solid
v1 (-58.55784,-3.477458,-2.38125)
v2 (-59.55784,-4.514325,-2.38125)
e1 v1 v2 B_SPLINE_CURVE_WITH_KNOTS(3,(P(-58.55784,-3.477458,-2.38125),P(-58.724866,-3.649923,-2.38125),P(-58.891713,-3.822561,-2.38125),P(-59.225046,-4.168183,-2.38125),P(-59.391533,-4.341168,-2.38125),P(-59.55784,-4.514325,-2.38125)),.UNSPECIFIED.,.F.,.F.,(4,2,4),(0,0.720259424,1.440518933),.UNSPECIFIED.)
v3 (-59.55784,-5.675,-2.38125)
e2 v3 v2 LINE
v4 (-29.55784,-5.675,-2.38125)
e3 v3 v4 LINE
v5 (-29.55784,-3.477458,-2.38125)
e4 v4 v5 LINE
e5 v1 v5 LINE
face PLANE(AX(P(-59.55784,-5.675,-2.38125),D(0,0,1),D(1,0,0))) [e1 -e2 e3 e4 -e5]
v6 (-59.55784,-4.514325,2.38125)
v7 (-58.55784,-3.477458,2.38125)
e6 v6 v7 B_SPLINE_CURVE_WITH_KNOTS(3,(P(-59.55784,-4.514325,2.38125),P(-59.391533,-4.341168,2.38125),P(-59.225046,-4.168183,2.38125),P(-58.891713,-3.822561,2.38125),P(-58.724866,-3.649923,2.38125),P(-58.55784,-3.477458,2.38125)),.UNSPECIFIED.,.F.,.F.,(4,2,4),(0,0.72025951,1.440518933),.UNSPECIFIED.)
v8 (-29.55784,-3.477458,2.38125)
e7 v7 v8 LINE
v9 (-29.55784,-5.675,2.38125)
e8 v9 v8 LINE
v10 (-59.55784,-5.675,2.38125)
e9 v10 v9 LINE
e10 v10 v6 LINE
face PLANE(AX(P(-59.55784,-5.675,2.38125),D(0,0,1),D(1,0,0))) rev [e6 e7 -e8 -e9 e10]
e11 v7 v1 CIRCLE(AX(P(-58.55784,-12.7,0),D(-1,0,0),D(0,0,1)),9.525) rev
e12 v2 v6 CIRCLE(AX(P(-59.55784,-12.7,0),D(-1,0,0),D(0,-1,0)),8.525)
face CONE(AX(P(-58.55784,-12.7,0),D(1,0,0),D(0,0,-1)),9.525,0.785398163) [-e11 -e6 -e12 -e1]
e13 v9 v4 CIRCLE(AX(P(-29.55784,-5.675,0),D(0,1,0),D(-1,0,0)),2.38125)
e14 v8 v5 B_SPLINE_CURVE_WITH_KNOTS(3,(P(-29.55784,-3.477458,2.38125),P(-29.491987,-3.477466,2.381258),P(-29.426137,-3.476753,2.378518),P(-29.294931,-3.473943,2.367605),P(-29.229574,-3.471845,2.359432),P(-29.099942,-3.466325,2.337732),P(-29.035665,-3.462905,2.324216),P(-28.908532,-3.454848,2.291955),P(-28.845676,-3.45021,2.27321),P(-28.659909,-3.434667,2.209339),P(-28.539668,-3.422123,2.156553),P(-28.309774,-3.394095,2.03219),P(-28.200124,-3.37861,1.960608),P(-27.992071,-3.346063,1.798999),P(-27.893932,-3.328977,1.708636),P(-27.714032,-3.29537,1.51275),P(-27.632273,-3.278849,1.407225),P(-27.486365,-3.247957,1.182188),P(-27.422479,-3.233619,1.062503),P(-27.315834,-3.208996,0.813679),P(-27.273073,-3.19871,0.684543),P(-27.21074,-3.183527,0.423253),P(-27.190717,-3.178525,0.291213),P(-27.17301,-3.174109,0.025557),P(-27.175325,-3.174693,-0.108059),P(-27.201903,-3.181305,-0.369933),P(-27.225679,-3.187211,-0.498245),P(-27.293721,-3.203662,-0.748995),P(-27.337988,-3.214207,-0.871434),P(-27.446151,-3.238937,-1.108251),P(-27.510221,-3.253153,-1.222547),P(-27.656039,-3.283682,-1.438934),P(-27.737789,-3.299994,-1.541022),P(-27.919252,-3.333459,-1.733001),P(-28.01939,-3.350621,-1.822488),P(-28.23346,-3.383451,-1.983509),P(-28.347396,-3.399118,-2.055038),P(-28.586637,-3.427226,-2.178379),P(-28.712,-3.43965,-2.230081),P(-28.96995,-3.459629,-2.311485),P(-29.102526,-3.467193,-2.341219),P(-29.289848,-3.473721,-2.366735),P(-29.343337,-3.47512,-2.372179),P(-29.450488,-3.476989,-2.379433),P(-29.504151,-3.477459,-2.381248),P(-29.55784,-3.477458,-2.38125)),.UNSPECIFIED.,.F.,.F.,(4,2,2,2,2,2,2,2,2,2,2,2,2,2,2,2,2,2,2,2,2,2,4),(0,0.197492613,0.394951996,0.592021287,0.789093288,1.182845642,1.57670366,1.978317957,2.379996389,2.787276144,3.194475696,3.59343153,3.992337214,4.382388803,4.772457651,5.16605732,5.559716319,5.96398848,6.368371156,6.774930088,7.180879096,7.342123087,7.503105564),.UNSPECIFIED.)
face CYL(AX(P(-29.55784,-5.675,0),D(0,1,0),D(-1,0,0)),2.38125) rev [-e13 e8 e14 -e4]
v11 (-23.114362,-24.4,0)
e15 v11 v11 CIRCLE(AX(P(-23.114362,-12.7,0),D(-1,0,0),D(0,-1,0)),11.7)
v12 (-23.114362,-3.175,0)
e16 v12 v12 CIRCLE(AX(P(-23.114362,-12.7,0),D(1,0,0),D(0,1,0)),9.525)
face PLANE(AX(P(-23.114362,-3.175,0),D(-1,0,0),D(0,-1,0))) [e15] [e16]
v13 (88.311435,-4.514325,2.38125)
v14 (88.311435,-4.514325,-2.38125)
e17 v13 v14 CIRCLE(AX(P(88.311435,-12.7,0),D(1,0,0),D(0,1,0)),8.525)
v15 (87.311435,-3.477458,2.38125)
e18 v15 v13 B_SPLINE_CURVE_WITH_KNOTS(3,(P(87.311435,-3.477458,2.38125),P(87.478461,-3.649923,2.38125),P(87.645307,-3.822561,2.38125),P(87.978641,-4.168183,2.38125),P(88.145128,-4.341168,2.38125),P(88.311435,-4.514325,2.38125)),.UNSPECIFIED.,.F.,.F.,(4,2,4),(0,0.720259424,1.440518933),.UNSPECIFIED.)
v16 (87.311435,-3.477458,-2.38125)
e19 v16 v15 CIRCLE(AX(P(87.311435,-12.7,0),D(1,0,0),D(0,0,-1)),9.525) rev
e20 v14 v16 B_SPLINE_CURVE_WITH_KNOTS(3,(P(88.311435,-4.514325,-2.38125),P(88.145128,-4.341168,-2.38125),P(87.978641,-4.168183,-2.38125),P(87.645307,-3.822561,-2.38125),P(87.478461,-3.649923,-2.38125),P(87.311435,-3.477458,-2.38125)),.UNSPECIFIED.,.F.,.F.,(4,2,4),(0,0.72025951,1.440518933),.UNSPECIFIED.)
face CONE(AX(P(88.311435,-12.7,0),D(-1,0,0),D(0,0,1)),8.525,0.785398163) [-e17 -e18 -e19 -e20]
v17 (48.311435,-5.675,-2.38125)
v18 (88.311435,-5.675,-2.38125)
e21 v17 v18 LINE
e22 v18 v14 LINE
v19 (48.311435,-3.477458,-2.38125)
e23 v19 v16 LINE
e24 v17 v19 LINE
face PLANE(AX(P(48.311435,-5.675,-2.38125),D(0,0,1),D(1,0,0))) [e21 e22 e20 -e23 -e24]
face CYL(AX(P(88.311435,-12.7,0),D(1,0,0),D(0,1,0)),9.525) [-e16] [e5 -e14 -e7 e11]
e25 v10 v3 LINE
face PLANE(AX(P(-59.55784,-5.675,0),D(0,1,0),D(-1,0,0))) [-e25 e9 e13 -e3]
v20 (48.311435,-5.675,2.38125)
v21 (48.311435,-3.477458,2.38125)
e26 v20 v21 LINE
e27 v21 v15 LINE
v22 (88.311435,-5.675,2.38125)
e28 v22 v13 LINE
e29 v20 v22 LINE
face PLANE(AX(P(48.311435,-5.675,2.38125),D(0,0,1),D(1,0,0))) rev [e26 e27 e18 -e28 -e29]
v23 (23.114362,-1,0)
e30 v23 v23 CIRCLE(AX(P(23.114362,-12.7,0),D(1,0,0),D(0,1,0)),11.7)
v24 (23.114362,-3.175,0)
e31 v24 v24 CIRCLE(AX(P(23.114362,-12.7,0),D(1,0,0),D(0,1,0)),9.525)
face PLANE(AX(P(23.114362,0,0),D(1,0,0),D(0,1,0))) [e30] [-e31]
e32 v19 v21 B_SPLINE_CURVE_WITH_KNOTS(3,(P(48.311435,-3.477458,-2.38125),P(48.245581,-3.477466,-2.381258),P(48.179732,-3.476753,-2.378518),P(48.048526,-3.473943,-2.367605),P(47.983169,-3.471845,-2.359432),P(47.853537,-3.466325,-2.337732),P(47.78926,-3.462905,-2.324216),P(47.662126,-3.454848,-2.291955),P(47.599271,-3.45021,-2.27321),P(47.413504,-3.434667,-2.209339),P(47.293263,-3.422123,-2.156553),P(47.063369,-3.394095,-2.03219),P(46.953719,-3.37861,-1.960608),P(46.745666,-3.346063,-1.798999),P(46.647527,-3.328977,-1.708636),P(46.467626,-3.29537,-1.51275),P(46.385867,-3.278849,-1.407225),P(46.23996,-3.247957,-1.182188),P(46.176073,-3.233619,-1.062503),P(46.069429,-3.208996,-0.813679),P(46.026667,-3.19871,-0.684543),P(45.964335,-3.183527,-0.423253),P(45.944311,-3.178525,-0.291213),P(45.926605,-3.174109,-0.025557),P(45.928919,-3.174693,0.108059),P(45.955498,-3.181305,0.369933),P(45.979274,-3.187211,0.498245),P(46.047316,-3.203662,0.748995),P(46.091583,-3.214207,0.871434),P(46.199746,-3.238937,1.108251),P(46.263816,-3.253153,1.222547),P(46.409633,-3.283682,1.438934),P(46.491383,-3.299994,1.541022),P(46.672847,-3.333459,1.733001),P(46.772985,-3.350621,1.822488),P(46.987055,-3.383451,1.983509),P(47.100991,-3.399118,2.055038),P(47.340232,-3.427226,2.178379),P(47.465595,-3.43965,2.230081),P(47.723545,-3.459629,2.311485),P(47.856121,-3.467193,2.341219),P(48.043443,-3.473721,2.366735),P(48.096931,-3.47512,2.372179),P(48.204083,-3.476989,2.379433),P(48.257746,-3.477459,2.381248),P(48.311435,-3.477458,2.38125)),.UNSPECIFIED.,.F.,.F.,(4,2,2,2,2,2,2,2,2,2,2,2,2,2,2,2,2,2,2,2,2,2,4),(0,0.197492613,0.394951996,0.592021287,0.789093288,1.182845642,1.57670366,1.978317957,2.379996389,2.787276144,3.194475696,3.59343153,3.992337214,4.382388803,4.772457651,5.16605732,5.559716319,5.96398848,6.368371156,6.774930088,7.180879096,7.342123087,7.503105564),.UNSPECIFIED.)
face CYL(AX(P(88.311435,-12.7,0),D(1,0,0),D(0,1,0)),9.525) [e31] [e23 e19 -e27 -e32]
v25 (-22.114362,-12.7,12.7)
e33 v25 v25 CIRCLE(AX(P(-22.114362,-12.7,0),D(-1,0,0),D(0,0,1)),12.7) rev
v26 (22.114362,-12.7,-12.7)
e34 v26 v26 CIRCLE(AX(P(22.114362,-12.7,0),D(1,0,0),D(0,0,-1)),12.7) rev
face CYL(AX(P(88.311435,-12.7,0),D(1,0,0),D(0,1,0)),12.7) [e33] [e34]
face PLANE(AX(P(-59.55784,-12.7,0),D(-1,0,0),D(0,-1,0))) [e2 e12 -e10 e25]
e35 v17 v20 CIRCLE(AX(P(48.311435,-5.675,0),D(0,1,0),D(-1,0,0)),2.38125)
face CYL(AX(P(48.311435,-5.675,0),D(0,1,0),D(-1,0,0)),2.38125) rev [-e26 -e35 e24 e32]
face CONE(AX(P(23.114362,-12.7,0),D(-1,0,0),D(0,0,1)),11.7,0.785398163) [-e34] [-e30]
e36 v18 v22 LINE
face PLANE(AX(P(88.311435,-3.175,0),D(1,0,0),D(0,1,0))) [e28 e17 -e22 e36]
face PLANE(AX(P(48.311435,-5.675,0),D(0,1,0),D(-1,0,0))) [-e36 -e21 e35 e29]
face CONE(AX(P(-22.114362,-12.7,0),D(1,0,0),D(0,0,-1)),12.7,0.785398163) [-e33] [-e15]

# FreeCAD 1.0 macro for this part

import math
import FreeCAD as App
import Part
import Sketcher
from FreeCAD import Vector


def edges_at(feature, points):
    """Names of the edges that pass closest to the given points."""
    edges = feature.Shape.Edges
    near = lambda p: min(range(len(edges)), key=lambda i: edges[i].distToShape(Part.Vertex(*p))[0])
    return sorted({f"Edge{near(p) + 1}" for p in points})


def add_polygon(sketch, points):
    """Adds a closed chain of lines whose ends are joined by coincident constraints."""
    first, n = sketch.GeometryCount, len(points)
    for a, b in zip(points, points[1:] + points[:1]):
        sketch.addGeometry(Part.LineSegment(App.Vector(*a, 0), App.Vector(*b, 0)), False)
    for i in range(n):
        sketch.addConstraint(Sketcher.Constraint("Coincident", first + i, 2, first + (i + 1) % n, 1))

doc = App.newDocument("Part")
body = doc.addObject("PartDesign::Body", "Body")

# Sketch on XY plane
sketch1 = body.newObject("Sketcher::SketchObject", "Sketch")
sketch1.AttachmentSupport = (doc.getObject("XY_Plane"), [""])
sketch1.MapMode = "FlatFace"
add_polygon(sketch1, [(23.114362, 0), (-23.114362, 0), (-23.114362, -3.175), (-59.55784, -3.175), (-59.55784, -12.7), (88.311435, -12.7), (88.311435, -3.175), (23.114362, -3.175)])  # lines 0-7
sketch1.addGeometry(Part.LineSegment(Vector(88.311435, -12.7, 0), Vector(-59.55784, -12.7, 0)), True)  # axis
sketch1.addConstraint([
    Sketcher.Constraint("Horizontal", 0),
    Sketcher.Constraint("Vertical", 1),
    Sketcher.Constraint("Horizontal", 2),
    Sketcher.Constraint("Vertical", 3),
    Sketcher.Constraint("Horizontal", 4),
    Sketcher.Constraint("Vertical", 5),
    Sketcher.Constraint("Horizontal", 6),
    Sketcher.Constraint("Vertical", 7),
    Sketcher.Constraint("Horizontal", 8),
    Sketcher.Constraint("Coincident", 8, 1, 4, 2),
    Sketcher.Constraint("Symmetric", 0, 2, 7, 2, -1, 1),
    Sketcher.Constraint("Horizontal", 2, 2, 5, 2),
    Sketcher.Constraint("Vertical", 2, 2, 8, 2),
    Sketcher.Constraint("DistanceY", 3, 2, -1, 1, 12.7),
    Sketcher.Constraint("DistanceY", 1, 2, 1, 1, 3.175),
    Sketcher.Constraint("DistanceX", 2, 2, 2, 1, 36.443478),
    Sketcher.Constraint("DistanceX", 0, 2, 0, 1, 46.228724),
    Sketcher.Constraint("DistanceX", 4, 1, 4, 2, 147.869275),
])
revolution = body.newObject("PartDesign::Revolution", "Revolution")
revolution.Profile = sketch1
revolution.ReferenceAxis = (sketch1, ["Axis0"])
revolution.Angle = 360

# Sketch on XZ plane
sketch2 = body.newObject("Sketcher::SketchObject", "Sketch001")
sketch2.AttachmentSupport = (doc.getObject("XZ_Plane"), [""])
sketch2.MapMode = "FlatFace"
sketch2.AttachmentOffset = App.Placement(Vector(0, 0, 3.175), App.Rotation())
sketch2.addGeometry([
    Part.LineSegment(Vector(88.311435, -2.38125, 0), Vector(48.311435, -2.38125, 0)),  # 0
    Part.ArcOfCircle(Part.Circle(Vector(48.311435, 0, 0), Vector(0, 0, 1), 2.38125), math.radians(90), math.radians(270)),  # 1
    Part.LineSegment(Vector(48.311435, 2.38125, 0), Vector(88.311435, 2.38125, 0)),  # 2
    Part.ArcOfCircle(Part.Circle(Vector(88.311435, 0, 0), Vector(0, 0, 1), 2.38125), math.radians(-90), math.radians(90)),  # 3
    Part.LineSegment(Vector(-29.55784, -2.38125, 0), Vector(-59.55784, -2.38125, 0)),  # 4
    Part.ArcOfCircle(Part.Circle(Vector(-59.55784, 0, 0), Vector(0, 0, 1), 2.38125), math.radians(90), math.radians(270)),  # 5
    Part.LineSegment(Vector(-59.55784, 2.38125, 0), Vector(-29.55784, 2.38125, 0)),  # 6
    Part.ArcOfCircle(Part.Circle(Vector(-29.55784, 0, 0), Vector(0, 0, 1), 2.38125), math.radians(-90), math.radians(90)),  # 7
], False)
sketch2.addConstraint([
    Sketcher.Constraint("Tangent", 0, 2, 1, 2),
    Sketcher.Constraint("Tangent", 1, 1, 2, 1),
    Sketcher.Constraint("Tangent", 2, 2, 3, 2),
    Sketcher.Constraint("Tangent", 3, 1, 0, 1),
    Sketcher.Constraint("Tangent", 4, 2, 5, 2),
    Sketcher.Constraint("Tangent", 5, 1, 6, 1),
    Sketcher.Constraint("Tangent", 6, 2, 7, 2),
    Sketcher.Constraint("Tangent", 7, 1, 4, 1),
    Sketcher.Constraint("Horizontal", 0),
    Sketcher.Constraint("Horizontal", 2),
    Sketcher.Constraint("Horizontal", 4),
    Sketcher.Constraint("Horizontal", 6),
    Sketcher.Constraint("Equal", 3, 5),
    Sketcher.Constraint("PointOnObject", 1, 3, -1),
    Sketcher.Constraint("PointOnObject", 5, 3, -1),
    Sketcher.Constraint("DistanceX", 0, 2, 0, 1, 40.0),
    Sketcher.Constraint("DistanceX", 4, 2, 4, 1, 30.0),
    Sketcher.Constraint("Radius", 1, 2.38125),
    Sketcher.Constraint("DistanceX", 5, 3, -1, 1, 59.55784),
    Sketcher.Constraint("DistanceX", -1, 1, 1, 3, 48.311435),
])
pocket1 = body.newObject("PartDesign::Pocket", "Pocket")
pocket1.Profile = sketch2
pocket1.Length = 2.5
pocket1.Reversed = True
doc.recompute()

chamfer = body.newObject("PartDesign::Chamfer", "Chamfer")
chamfer.Base = (pocket1, edges_at(pocket1, [
    (88.311, -22.225, 0),
    (-59.558, -22.225, 0),
    (23.114, -25.4, 0),
    (-23.114, -25.4, 0),
]))
chamfer.Size = 1

doc.recompute()
